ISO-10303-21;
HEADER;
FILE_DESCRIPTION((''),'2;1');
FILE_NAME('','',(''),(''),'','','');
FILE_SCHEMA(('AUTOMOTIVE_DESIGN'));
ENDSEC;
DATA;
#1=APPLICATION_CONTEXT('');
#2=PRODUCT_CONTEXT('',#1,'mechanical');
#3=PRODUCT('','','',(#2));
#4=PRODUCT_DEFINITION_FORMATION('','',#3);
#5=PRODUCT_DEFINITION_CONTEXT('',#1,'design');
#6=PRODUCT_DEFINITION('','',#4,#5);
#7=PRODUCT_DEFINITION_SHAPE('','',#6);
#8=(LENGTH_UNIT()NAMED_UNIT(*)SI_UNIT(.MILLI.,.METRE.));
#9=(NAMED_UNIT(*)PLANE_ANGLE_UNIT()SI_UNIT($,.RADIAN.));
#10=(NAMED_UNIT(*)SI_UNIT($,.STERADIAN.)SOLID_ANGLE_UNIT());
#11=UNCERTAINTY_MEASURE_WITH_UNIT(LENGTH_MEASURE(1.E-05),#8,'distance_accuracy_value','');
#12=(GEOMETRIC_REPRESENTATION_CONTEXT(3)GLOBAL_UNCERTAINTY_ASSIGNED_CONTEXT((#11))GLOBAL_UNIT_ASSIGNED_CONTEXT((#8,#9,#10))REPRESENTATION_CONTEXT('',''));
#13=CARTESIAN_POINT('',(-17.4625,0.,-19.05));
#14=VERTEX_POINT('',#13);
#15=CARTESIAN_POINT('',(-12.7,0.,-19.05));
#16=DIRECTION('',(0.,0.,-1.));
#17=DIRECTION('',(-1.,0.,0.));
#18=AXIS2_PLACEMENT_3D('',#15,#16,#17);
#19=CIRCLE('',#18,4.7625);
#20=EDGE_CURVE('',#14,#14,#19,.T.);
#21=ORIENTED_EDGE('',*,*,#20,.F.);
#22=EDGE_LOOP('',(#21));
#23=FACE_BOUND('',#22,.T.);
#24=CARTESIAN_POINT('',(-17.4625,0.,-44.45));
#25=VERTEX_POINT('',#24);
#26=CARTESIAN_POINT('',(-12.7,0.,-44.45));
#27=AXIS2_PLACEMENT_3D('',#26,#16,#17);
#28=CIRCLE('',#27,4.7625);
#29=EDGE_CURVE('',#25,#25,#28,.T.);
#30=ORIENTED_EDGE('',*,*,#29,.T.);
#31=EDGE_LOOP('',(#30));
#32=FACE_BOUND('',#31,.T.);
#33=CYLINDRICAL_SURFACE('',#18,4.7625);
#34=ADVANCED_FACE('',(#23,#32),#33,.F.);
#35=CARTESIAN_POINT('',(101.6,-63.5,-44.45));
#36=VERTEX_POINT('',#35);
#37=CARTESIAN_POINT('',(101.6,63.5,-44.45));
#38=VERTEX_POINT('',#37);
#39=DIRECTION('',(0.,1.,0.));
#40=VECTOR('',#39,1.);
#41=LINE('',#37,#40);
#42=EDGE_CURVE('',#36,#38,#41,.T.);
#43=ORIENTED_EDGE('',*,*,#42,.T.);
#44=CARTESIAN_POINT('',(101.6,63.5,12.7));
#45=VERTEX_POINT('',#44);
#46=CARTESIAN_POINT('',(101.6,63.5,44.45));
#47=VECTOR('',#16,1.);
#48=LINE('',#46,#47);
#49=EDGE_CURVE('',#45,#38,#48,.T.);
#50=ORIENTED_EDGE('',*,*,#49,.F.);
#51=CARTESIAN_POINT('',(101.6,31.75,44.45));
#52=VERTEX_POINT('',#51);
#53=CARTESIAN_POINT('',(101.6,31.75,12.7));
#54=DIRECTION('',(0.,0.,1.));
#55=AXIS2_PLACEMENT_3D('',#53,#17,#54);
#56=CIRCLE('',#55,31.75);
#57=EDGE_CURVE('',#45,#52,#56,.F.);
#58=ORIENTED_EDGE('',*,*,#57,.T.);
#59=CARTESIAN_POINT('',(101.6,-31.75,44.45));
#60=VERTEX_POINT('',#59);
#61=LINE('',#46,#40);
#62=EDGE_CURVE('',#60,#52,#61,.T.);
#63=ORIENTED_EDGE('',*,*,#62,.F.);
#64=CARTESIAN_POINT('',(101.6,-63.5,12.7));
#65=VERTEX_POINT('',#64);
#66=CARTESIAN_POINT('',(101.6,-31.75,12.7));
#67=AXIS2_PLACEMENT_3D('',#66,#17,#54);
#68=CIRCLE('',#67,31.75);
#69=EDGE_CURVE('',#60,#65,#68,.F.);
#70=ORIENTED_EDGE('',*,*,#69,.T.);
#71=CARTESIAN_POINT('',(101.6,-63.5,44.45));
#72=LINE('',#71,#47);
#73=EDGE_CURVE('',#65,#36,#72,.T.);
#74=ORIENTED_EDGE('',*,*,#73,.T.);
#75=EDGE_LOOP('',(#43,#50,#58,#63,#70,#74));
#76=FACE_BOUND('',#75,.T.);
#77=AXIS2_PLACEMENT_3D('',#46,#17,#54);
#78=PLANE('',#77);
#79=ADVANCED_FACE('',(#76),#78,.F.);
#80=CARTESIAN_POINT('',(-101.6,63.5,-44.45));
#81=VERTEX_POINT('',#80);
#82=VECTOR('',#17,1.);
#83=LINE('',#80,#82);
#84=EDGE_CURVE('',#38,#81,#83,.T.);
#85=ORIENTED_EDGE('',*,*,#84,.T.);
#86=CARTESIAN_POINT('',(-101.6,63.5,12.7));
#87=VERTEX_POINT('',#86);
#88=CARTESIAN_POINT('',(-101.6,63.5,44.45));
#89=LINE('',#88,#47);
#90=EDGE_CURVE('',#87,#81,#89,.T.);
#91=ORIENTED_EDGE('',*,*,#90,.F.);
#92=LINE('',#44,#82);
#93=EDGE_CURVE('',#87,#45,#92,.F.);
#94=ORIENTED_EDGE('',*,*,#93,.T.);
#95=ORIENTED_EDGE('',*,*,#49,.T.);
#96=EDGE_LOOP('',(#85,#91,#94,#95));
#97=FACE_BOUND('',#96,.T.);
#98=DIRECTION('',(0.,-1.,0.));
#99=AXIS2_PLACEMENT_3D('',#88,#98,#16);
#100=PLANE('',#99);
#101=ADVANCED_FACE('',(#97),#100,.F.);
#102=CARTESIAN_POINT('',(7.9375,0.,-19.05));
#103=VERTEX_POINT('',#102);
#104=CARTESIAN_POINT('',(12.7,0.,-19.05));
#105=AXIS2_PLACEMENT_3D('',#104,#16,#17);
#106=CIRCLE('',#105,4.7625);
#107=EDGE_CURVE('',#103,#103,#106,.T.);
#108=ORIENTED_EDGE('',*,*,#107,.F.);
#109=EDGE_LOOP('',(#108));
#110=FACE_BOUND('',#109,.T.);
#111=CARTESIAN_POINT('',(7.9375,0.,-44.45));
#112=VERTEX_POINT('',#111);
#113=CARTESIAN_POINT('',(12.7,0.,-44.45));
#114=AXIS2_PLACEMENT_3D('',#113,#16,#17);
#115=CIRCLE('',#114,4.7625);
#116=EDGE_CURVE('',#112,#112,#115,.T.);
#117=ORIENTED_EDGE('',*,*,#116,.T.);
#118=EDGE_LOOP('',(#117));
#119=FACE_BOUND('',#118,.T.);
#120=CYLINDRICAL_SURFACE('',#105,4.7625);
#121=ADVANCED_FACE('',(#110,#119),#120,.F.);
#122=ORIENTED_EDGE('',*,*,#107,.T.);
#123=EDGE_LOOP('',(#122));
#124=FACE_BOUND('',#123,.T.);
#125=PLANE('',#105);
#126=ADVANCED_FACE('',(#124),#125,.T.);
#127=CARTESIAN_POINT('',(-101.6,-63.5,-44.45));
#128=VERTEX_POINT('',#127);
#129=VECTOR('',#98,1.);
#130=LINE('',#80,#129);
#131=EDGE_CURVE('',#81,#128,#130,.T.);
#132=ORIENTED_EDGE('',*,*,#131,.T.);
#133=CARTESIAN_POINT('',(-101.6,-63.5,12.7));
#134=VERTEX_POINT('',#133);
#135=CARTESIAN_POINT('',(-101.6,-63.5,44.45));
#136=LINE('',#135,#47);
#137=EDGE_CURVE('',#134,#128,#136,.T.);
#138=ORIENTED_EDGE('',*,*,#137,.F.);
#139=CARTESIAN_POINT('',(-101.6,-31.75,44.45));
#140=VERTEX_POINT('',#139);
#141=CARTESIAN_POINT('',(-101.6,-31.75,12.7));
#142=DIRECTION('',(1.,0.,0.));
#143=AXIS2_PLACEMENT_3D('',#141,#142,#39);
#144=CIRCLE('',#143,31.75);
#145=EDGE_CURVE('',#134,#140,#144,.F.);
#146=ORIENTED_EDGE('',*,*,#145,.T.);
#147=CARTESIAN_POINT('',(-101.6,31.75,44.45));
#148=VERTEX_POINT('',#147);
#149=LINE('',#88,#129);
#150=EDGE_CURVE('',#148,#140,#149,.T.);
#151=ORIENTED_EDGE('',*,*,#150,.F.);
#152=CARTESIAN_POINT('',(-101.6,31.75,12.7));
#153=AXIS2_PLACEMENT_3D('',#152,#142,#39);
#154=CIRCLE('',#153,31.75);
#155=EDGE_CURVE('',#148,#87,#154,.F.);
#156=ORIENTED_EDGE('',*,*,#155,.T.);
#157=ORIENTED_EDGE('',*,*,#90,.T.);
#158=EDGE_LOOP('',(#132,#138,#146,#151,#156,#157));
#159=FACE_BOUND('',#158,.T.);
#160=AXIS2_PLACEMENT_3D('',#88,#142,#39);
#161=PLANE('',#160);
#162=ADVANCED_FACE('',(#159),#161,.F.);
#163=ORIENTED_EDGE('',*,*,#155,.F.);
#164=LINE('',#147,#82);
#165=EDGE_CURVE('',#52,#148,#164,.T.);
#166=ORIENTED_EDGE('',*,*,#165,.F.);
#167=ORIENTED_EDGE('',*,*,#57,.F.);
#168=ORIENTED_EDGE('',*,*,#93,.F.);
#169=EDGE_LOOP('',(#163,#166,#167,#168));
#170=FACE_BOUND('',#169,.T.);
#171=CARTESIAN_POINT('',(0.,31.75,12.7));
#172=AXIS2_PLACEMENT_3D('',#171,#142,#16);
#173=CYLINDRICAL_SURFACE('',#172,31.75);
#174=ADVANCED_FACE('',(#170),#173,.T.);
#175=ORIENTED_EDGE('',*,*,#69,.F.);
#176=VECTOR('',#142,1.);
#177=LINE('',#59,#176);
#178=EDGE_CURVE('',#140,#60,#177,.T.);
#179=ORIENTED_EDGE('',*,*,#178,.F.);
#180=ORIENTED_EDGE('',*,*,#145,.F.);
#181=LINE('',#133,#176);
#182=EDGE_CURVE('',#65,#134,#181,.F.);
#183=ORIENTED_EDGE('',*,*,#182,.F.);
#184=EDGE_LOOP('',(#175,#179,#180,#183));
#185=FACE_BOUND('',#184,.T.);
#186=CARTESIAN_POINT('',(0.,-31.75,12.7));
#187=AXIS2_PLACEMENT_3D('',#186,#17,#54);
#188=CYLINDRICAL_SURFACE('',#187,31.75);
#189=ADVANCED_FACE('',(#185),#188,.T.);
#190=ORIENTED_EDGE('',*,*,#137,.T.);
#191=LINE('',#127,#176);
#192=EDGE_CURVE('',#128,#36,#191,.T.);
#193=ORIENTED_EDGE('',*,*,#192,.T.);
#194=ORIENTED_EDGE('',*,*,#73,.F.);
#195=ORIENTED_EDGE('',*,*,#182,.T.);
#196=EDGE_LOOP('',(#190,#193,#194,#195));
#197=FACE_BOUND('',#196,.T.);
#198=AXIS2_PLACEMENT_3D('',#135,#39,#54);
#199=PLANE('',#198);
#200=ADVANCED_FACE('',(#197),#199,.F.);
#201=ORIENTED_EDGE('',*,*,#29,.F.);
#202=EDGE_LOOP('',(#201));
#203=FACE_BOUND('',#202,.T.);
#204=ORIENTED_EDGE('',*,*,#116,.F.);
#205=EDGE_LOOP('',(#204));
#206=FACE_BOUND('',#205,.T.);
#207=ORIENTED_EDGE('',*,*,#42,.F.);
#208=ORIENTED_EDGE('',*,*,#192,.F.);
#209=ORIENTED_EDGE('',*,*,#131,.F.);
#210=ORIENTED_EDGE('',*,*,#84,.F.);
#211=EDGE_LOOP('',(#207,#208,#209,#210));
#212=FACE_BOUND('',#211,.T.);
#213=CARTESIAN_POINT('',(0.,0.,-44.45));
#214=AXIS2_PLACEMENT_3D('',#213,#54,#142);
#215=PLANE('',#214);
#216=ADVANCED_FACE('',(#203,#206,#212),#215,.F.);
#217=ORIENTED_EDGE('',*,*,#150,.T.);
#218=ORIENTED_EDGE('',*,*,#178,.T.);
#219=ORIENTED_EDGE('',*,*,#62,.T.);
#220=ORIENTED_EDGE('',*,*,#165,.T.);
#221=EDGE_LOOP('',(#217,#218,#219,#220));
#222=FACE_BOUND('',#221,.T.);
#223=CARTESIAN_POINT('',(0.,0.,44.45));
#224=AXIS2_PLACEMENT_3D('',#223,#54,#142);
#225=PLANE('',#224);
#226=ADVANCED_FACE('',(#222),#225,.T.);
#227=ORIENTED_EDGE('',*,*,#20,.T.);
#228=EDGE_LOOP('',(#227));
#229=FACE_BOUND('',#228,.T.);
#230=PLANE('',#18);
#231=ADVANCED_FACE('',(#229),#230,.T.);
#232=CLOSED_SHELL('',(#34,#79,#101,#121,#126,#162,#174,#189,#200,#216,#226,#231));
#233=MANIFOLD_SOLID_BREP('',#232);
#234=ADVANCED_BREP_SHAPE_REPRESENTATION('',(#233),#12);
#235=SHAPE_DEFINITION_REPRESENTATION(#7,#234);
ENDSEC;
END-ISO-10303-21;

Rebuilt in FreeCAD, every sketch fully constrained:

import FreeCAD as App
import Part
import Sketcher

V = App.Vector
Q = App.Units.Quantity


def edges_at(feature, points):
    """Names of the edges that pass closest to the given points."""
    edges = feature.Shape.Edges
    near = lambda p: min(range(len(edges)), key=lambda i: edges[i].distToShape(Part.Vertex(*p))[0])
    return sorted({f"Edge{near(p) + 1}" for p in points})


def add_polygon(sketch, points):
    """Adds a closed chain of lines whose ends are joined by coincident constraints."""
    first, n = sketch.GeometryCount, len(points)
    for a, b in zip(points, points[1:] + points[:1]):
        sketch.addGeometry(Part.LineSegment(App.Vector(*a, 0), App.Vector(*b, 0)), False)
    for i in range(n):
        sketch.addConstraint(Sketcher.Constraint("Coincident", first + i, 2, first + (i + 1) % n, 1))

doc = App.newDocument("Part")
body = doc.addObject("PartDesign::Body", "Body")

sketch1 = body.newObject("Sketcher::SketchObject", "Sketch")
sketch1.AttachmentSupport = (doc.getObject("XY_Plane"), [""])
sketch1.MapMode = "FlatFace"
add_polygon(sketch1, [(-102, 64), (-102, -64), (102, -64), (102, 64)])
sketch1.addConstraint([
    Sketcher.Constraint("Vertical", 0),
    Sketcher.Constraint("Horizontal", 1),
    Sketcher.Constraint("Vertical", 2),
    Sketcher.Constraint("Horizontal", 3),
    Sketcher.Constraint("Symmetric", 0, 2, 2, 2, -1, 1),
    Sketcher.Constraint("DistanceX", 1, 1, 1, 2, Q("8 in")),
    Sketcher.Constraint("DistanceY", 0, 2, 0, 1, Q("5 in")),
])
pad1 = body.newObject("PartDesign::Pad", "Pad")
pad1.Profile = sketch1
pad1.Length = Q("3.5 in")
pad1.Midplane = True
doc.recompute()

fillet = body.newObject("PartDesign::Fillet", "Fillet")
fillet.Base = (pad1, edges_at(pad1, [(0, -63.5, 44.45), (0, 63.5, 44.45)]))
fillet.Radius = Q("1.25 in")

sketch2 = body.newObject("Sketcher::SketchObject", "Sketch001")
sketch2.AttachmentSupport = (doc.getObject("XY_Plane"), [""])
sketch2.MapMode = "FlatFace"
sketch2.AttachmentOffset = App.Placement(V(0, 0, -1.75 * 25.4), App.Rotation())
sketch2.addGeometry([
    Part.Circle(V(12.7, 0, 0), V(0, 0, 1), 4.8),
    Part.Circle(V(-12.7, 0, 0), V(0, 0, 1), 4.8),
], False)
sketch2.addConstraint([
    Sketcher.Constraint("Equal", 0, 1),
    Sketcher.Constraint("Symmetric", 0, 3, 1, 3, -1, 1),
    Sketcher.Constraint("PointOnObject", 0, 3, -1),
    Sketcher.Constraint("Diameter", 0, Q("0.375 in")),
    Sketcher.Constraint("DistanceX", 1, 3, 0, 3, Q("1 in")),
])
pocket1 = body.newObject("PartDesign::Pocket", "Pocket")
pocket1.Profile = sketch2
pocket1.Length = Q("1 in")
pocket1.Reversed = True

doc.recompute()
